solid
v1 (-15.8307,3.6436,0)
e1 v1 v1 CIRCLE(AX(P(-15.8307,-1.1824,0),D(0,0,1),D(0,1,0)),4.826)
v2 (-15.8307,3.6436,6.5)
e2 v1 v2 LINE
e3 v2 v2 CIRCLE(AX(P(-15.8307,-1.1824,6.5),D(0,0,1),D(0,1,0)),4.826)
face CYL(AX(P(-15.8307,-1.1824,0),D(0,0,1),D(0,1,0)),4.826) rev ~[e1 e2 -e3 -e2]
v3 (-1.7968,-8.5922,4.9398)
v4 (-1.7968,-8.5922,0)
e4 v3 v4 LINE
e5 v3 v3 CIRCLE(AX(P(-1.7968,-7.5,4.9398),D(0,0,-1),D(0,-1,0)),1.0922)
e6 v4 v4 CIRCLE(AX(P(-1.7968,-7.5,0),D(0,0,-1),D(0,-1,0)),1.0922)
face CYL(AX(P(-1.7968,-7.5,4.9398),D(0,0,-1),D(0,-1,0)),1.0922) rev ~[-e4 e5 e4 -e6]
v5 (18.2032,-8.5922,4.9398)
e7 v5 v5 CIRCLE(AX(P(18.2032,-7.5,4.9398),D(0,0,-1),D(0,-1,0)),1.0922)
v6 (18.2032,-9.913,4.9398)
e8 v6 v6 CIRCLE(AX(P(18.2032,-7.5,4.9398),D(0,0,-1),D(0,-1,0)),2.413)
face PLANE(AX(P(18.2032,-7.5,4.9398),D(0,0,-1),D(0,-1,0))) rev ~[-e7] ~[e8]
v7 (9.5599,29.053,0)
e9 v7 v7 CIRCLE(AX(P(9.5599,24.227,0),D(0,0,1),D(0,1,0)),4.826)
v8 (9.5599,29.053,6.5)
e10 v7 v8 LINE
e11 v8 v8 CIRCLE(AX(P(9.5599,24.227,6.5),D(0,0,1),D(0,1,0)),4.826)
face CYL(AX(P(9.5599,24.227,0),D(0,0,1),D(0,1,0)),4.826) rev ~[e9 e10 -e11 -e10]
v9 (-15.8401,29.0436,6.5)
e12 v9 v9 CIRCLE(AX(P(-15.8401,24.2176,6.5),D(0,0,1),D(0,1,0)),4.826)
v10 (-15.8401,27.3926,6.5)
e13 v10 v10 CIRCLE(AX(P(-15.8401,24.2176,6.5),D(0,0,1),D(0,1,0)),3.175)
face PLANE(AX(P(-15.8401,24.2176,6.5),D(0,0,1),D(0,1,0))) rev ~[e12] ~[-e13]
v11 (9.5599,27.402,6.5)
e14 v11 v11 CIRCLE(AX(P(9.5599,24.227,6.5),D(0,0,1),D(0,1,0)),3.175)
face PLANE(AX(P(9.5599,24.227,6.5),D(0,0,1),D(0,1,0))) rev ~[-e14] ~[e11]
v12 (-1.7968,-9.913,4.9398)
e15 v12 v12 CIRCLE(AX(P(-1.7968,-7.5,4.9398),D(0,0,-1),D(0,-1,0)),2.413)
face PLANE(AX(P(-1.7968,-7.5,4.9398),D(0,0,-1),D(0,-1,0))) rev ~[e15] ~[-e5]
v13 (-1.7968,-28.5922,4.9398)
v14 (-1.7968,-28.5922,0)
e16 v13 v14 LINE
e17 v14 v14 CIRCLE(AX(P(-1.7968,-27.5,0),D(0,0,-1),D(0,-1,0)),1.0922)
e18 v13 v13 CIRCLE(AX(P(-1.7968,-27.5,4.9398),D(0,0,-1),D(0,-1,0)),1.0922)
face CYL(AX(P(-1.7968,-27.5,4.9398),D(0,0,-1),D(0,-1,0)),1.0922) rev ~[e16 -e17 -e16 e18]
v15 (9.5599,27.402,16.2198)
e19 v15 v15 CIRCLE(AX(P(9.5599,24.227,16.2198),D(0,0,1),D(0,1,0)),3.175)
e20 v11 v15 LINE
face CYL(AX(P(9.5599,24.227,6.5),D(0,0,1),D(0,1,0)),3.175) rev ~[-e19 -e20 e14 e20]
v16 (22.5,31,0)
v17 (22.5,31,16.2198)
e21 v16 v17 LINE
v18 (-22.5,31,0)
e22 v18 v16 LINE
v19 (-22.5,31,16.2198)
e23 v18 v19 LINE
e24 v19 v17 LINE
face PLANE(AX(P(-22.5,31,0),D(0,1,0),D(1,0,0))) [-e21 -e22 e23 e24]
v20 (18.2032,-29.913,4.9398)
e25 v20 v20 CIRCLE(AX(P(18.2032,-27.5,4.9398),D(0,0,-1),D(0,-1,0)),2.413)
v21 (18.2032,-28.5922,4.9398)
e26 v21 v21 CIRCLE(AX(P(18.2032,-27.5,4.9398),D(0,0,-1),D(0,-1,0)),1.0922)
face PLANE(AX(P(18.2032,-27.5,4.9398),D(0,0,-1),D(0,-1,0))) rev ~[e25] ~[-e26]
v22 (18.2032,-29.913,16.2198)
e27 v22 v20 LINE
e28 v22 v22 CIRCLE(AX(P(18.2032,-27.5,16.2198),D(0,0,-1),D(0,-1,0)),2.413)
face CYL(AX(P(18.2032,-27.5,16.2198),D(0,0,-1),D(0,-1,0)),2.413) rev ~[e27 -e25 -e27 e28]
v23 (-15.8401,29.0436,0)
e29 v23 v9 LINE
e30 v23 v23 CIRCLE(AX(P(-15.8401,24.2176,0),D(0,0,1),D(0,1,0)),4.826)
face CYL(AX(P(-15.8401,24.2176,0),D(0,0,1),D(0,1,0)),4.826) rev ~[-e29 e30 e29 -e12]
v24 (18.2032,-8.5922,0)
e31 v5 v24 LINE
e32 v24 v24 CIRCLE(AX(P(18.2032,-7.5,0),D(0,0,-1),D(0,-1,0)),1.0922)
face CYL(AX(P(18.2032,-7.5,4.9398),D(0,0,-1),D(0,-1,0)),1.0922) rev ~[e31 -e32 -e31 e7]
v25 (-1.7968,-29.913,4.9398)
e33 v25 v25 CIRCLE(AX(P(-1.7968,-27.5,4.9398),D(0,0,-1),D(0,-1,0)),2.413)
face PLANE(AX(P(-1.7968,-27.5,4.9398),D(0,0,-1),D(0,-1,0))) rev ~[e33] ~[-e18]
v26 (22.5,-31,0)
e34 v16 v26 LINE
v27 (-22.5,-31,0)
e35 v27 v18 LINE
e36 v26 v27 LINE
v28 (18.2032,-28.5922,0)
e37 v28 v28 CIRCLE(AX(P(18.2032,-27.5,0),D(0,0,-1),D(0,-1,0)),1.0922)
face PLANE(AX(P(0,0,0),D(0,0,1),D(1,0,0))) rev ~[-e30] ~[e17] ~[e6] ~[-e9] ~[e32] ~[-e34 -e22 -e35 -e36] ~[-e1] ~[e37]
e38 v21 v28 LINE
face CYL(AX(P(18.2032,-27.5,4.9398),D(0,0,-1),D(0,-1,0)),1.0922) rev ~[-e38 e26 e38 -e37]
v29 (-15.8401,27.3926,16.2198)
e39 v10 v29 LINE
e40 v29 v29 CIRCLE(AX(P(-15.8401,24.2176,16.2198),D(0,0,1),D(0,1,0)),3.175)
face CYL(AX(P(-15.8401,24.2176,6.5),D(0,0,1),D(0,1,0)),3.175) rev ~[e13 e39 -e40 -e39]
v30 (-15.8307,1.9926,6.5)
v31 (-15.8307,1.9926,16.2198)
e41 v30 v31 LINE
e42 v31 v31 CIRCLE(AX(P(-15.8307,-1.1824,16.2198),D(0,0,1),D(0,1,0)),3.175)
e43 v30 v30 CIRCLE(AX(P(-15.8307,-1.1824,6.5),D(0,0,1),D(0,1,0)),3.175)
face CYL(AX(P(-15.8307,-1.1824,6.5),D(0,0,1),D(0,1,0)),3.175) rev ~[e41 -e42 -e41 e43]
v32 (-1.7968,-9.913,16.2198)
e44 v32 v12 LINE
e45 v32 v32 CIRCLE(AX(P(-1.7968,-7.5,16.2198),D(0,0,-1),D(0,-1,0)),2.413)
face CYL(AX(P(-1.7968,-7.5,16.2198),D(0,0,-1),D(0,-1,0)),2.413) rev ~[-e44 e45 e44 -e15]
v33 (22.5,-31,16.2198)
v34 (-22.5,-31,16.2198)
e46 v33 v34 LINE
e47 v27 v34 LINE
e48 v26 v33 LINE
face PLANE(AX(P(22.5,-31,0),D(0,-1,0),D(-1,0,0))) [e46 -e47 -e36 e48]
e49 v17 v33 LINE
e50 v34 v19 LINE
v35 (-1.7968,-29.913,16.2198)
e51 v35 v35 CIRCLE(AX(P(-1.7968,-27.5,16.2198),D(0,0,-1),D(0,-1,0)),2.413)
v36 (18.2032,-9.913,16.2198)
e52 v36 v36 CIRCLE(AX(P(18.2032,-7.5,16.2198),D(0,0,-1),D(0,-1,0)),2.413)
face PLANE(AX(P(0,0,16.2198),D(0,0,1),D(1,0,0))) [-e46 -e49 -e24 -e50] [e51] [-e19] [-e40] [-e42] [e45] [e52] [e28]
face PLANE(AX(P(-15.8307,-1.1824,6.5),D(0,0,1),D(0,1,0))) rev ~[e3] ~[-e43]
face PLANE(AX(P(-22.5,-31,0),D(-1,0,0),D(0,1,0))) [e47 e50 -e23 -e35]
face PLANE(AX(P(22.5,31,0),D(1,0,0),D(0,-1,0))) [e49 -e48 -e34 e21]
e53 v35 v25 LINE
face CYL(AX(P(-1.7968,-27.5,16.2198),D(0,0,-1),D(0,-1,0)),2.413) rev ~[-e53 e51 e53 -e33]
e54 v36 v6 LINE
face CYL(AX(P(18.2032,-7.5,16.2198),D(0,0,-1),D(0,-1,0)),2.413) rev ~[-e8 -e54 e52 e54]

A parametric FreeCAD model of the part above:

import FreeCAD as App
import Part
import Sketcher

doc = App.newDocument("Part")
body = doc.addObject("PartDesign::Body", "Body")

# Sketch on XY plane
sketch1 = body.newObject("Sketcher::SketchObject", "Sketch")
sketch1.AttachmentSupport = (doc.getObject("XY_Plane"), [""])
sketch1.MapMode = "FlatFace"
sketch1.addGeometry([
    Part.LineSegment(App.Vector(22, 31, 0), App.Vector(-22, 31, 0)),
    Part.LineSegment(App.Vector(-22, 31, 0), App.Vector(-22, -31, 0)),
    Part.LineSegment(App.Vector(-22, -31, 0), App.Vector(22, -31, 0)),
    Part.LineSegment(App.Vector(22, -31, 0), App.Vector(22, 31, 0)),
], False)
sketch1.addConstraint([
    Sketcher.Constraint("Coincident", 0, 2, 1, 1),
    Sketcher.Constraint("Coincident", 1, 2, 2, 1),
    Sketcher.Constraint("Coincident", 2, 2, 3, 1),
    Sketcher.Constraint("Coincident", 3, 2, 0, 1),
    Sketcher.Constraint("Horizontal", 0),
    Sketcher.Constraint("Vertical", 1),
    Sketcher.Constraint("Horizontal", 2),
    Sketcher.Constraint("Vertical", 3),
    Sketcher.Constraint("Symmetric", 0, 2, 2, 2, -1, 1),
    Sketcher.Constraint("DistanceX", 0, 2, 0, 1, 45.0),
    Sketcher.Constraint("DistanceY", 1, 2, 1, 1, 62.0),
])
pad1 = body.newObject("PartDesign::Pad", "Pad")
pad1.Profile = sketch1
pad1.Length = 16.2198

# Sketch on XY plane
sketch2 = body.newObject("Sketcher::SketchObject", "Sketch001")
sketch2.AttachmentSupport = (doc.getObject("XY_Plane"), [""])
sketch2.MapMode = "FlatFace"
sketch2.addGeometry([
    Part.Circle(App.Vector(9.6, 24.2, 0), App.Vector(0, 0, 1), 3.2),
    Part.Circle(App.Vector(-15.8, 24.2, 0), App.Vector(0, 0, 1), 3.2),
    Part.Circle(App.Vector(-15.8, -1.2, 0), App.Vector(0, 0, 1), 3.2),
], False)
sketch2.addConstraint([
    Sketcher.Constraint("Equal", 0, 1),
    Sketcher.Constraint("Equal", 1, 2),
    Sketcher.Constraint("Diameter", 0, 6.35),
    Sketcher.Constraint("DistanceX", 1, 3, 0, 3, 25.4),
    Sketcher.Constraint("DistanceY", 2, 3, 1, 3, 25.4),
    Sketcher.Constraint("DistanceX", -1, 1, 0, 3, 9.56),
    Sketcher.Constraint("DistanceY", -1, 1, 0, 3, 24.227),
    Sketcher.Constraint("DistanceY", -1, 1, 1, 3, 24.2176),
    Sketcher.Constraint("DistanceX", 2, 3, -1, 1, 15.8307),
])
doc.recompute()
hole = body.newObject("PartDesign::Hole", "Hole")
hole.Profile = sketch2
hole.ThreadType = "None"
hole.Diameter = 6.35
hole.DepthType = "ThroughAll"
hole.HoleCutType = "Counterbore"
hole.HoleCutDiameter = 9.652
hole.HoleCutDepth = 6.5
hole.Reversed = True

# Sketch on XY plane
sketch3 = body.newObject("Sketcher::SketchObject", "Sketch002")
sketch3.AttachmentSupport = (doc.getObject("XY_Plane"), [""])
sketch3.MapMode = "FlatFace"
sketch3.AttachmentOffset = App.Placement(App.Vector(0, 0, 16.2198), App.Rotation())
sketch3.addGeometry([
    Part.Circle(App.Vector(18.2, -7.5, 0), App.Vector(0, 0, 1), 1.1),
    Part.Circle(App.Vector(-1.8, -7.5, 0), App.Vector(0, 0, 1), 1.1),
    Part.Circle(App.Vector(-1.8, -27.5, 0), App.Vector(0, 0, 1), 1.1),
    Part.Circle(App.Vector(18.2, -27.5, 0), App.Vector(0, 0, 1), 1.1),
], False)
sketch3.addConstraint([
    Sketcher.Constraint("Equal", 0, 1),
    Sketcher.Constraint("Equal", 1, 2),
    Sketcher.Constraint("Equal", 2, 3),
    Sketcher.Constraint("Horizontal", 0, 3, 1, 3),
    Sketcher.Constraint("Horizontal", 2, 3, 3, 3),
    Sketcher.Constraint("Vertical", 1, 3, 2, 3),
    Sketcher.Constraint("Vertical", 0, 3, 3, 3),
    Sketcher.Constraint("DistanceX", 1, 3, 0, 3, 20.0),
    Sketcher.Constraint("DistanceY", 2, 3, 1, 3, 20.0),
    Sketcher.Constraint("Diameter", 0, 2.1844),
    Sketcher.Constraint("DistanceY", 0, 3, -1, 1, 7.5),
    Sketcher.Constraint("DistanceX", -1, 1, 0, 3, 18.2032),
])
doc.recompute()
hole2 = body.newObject("PartDesign::Hole", "Hole001")
hole2.Profile = sketch3
hole2.ThreadType = "None"
hole2.Diameter = 2.1844
hole2.DepthType = "ThroughAll"
hole2.HoleCutType = "Counterbore"
hole2.HoleCutDiameter = 4.826
hole2.HoleCutDepth = 11.28

doc.recompute()
